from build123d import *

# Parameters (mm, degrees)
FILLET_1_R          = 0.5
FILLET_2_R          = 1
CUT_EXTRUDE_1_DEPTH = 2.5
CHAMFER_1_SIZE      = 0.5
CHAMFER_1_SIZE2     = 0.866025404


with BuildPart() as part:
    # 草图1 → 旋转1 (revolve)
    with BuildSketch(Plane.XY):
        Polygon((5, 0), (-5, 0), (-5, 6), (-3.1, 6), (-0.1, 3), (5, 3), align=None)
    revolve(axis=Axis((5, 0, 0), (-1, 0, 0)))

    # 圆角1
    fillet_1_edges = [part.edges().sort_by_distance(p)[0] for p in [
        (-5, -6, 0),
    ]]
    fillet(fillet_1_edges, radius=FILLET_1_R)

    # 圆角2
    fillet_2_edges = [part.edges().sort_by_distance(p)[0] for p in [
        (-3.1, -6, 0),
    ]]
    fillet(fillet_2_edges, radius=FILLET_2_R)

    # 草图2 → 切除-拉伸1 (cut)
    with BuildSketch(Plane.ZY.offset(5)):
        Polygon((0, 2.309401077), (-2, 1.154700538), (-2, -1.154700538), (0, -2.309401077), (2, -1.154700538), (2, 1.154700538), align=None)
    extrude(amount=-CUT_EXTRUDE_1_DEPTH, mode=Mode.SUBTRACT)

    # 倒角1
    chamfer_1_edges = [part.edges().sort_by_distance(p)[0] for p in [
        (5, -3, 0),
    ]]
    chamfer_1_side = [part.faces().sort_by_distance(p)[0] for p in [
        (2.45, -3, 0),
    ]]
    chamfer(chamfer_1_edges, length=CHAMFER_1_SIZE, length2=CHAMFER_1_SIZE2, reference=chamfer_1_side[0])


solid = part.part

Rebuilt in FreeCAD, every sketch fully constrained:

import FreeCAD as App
import Part
import Sketcher
from FreeCAD import Vector
Q = App.Units.Quantity


def edges_at(feature, points):
    """Names of the edges that pass closest to the given points."""
    edges = feature.Shape.Edges
    near = lambda p: min(range(len(edges)), key=lambda i: edges[i].distToShape(Part.Vertex(*p))[0])
    return sorted({f"Edge{near(p) + 1}" for p in points})


def add_polygon(sketch, points):
    """Adds a closed chain of lines whose ends are joined by coincident constraints."""
    first, n = sketch.GeometryCount, len(points)
    for a, b in zip(points, points[1:] + points[:1]):
        sketch.addGeometry(Part.LineSegment(App.Vector(*a, 0), App.Vector(*b, 0)), False)
    for i in range(n):
        sketch.addConstraint(Sketcher.Constraint("Coincident", first + i, 2, first + (i + 1) % n, 1))

doc = App.newDocument("Part")
params = doc.addObject("Spreadsheet::Sheet", "Params")
for row, (alias, value) in enumerate([
    ("sketch1_width", "10 mm"),
    ("sketch1_height", "3 mm"),
    ("sketch1_height2", "6 mm"),
    ("sketch1_width2", "5.1 mm"),
    ("revolution_angle", "360 deg"),
    ("fillet_radius", "0.5 mm"),
    ("fillet2_radius", "1 mm"),
    ("pocket1_length", "2.5 mm"),
    ("chamfer_size", "0.5 mm"),
    ("chamfer_size2", "0.866025 mm"),
], start=1):
    params.set(f"A{row}", alias)
    params.set(f"B{row}", "=" + value)
    params.setAlias(f"B{row}", alias)

body = doc.addObject("PartDesign::Body", "Body")

# Sketch on XY plane
sketch1 = body.newObject("Sketcher::SketchObject", "Sketch")
sketch1.AttachmentSupport = (doc.getObject("XY_Plane"), [""])
sketch1.MapMode = "FlatFace"
add_polygon(sketch1, [(-5, 0), (5, 0), (5, 3), (-0.1, 3), (-3.1, 6), (-5, 6)])  # lines 0-5
sketch1.addConstraint([
    Sketcher.Constraint("Horizontal", 0),
    Sketcher.Constraint("Vertical", 1),
    Sketcher.Constraint("Horizontal", 2),
    Sketcher.Constraint("Horizontal", 4),
    Sketcher.Constraint("Vertical", 5),
    Sketcher.Constraint("Symmetric", 0, 2, 5, 2, -1, 1),
    Sketcher.Constraint("DistanceX", 0, 1, 0, 2, Q("10 mm")),
    Sketcher.Constraint("DistanceY", 1, 1, 1, 2, Q("3 mm")),
    Sketcher.Constraint("DistanceY", 5, 2, 5, 1, Q("6 mm")),
    Sketcher.Constraint("Angle", 3, Q("135 deg")),
    Sketcher.Constraint("DistanceX", 2, 2, 2, 1, Q("5.1 mm")),
])
sketch1.setExpression("Constraints[12]", "Params.sketch1_width")
sketch1.setExpression("Constraints[13]", "Params.sketch1_height")
sketch1.setExpression("Constraints[14]", "Params.sketch1_height2")
sketch1.setExpression("Constraints[16]", "Params.sketch1_width2")
revolution = body.newObject("PartDesign::Revolution", "Revolution")
revolution.Profile = sketch1
revolution.ReferenceAxis = (sketch1, ["H_Axis"])
revolution.setExpression("Angle", "Params.revolution_angle")
doc.recompute()

fillet = body.newObject("PartDesign::Fillet", "Fillet")
fillet.Base = (revolution, edges_at(revolution, [(-5, -6, 0)]))
fillet.setExpression("Radius", "Params.fillet_radius")
doc.recompute()

fillet2 = body.newObject("PartDesign::Fillet", "Fillet001")
fillet2.Base = (fillet, edges_at(fillet, [(-3.1, -6, 0)]))
fillet2.setExpression("Radius", "Params.fillet2_radius")

# Sketch on YZ plane
sketch2 = body.newObject("Sketcher::SketchObject", "Sketch001")
sketch2.AttachmentSupport = (doc.getObject("YZ_Plane"), [""])
sketch2.MapMode = "FlatFace"
sketch2.AttachmentOffset = App.Placement(Vector(0, 0, -5), App.Rotation())
add_polygon(sketch2, [(2.3, 0), (1.2, -2), (-1.2, -2), (-2.3, 0), (-1.2, 2), (1.2, 2)])  # lines 0-5
sketch2.addConstraint([
    Sketcher.Constraint("Horizontal", 1),
    Sketcher.Constraint("Horizontal", 4),
    Sketcher.Constraint("Symmetric", 0, 2, 3, 2, -1, 1),
    Sketcher.Constraint("Symmetric", 2, 2, 5, 2, -1, 1),
    Sketcher.Constraint("PointOnObject", 2, 2, -1),
    Sketcher.Constraint("Parallel", 2, 5),
    Sketcher.Constraint("Vertical", 1, 2, 3, 2),
    Sketcher.Constraint("Angle", 0, Q("-120 deg")),
    Sketcher.Constraint("DistanceY", 0, 2, -1, 1, Q("2 mm")),
    Sketcher.Constraint("DistanceX", 1, 2, 1, 1, Q("2.309401 mm")),
])
pocket1 = body.newObject("PartDesign::Pocket", "Pocket")
pocket1.Profile = sketch2
pocket1.setExpression("Length", "Params.pocket1_length")
pocket1.Reversed = True
doc.recompute()

chamfer = body.newObject("PartDesign::Chamfer", "Chamfer")
chamfer.Base = (pocket1, edges_at(pocket1, [(5, -3, 0)]))
chamfer.ChamferType = "Two distances"
chamfer.setExpression("Size", "Params.chamfer_size")
chamfer.setExpression("Size2", "Params.chamfer_size2")

doc.recompute()
